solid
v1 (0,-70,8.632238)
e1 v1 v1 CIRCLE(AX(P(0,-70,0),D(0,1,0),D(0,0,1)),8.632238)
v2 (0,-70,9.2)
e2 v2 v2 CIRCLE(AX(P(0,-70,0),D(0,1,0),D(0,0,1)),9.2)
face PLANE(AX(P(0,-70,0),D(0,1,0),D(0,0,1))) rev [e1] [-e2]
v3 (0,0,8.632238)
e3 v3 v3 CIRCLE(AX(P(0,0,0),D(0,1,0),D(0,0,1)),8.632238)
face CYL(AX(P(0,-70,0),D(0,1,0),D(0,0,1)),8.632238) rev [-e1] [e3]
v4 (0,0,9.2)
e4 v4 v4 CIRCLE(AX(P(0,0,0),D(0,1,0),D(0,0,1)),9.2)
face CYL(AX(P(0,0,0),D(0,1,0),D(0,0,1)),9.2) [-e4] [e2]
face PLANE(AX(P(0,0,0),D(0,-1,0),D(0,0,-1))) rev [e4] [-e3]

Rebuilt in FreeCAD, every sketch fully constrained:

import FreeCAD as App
import Part
import Sketcher


def add_polygon(sketch, points):
    """Adds a closed chain of lines whose ends are joined by coincident constraints."""
    first, n = sketch.GeometryCount, len(points)
    for a, b in zip(points, points[1:] + points[:1]):
        sketch.addGeometry(Part.LineSegment(App.Vector(*a, 0), App.Vector(*b, 0)), False)
    for i in range(n):
        sketch.addConstraint(Sketcher.Constraint("Coincident", first + i, 2, first + (i + 1) % n, 1))

doc = App.newDocument("Part")
body = doc.addObject("PartDesign::Body", "Body")

# Sketch on YZ plane
sketch1 = doc.addObject("Sketcher::SketchObject", "Sketch")
body.addObject(sketch1)
sketch1.AttachmentSupport = (doc.YZ_Plane, [""])
sketch1.MapMode = "FlatFace"
add_polygon(sketch1, [(0, 0), (-70, 0), (-70, -9), (0, -9)])  # lines 0-3
sketch1.addConstraint(Sketcher.Constraint("Horizontal", 0))
sketch1.addConstraint(Sketcher.Constraint("Vertical", 1))
sketch1.addConstraint(Sketcher.Constraint("Horizontal", 2))
sketch1.addConstraint(Sketcher.Constraint("Vertical", 3))
sketch1.addConstraint(Sketcher.Constraint("Coincident", 3, 2, -1, 1))
sketch1.addConstraint(Sketcher.Constraint("DistanceX", 0, 2, 0, 1, 70.0))
sketch1.addConstraint(Sketcher.Constraint("DistanceY", 1, 2, 1, 1, 9.2))
revolution = doc.addObject("PartDesign::Revolution", "Revolution")
body.addObject(revolution)
revolution.Profile = sketch1
revolution.ReferenceAxis = (sketch1, ["H_Axis"])
revolution.Angle = 360

# Sketch on XZ plane
sketch2 = doc.addObject("Sketcher::SketchObject", "Sketch001")
body.addObject(sketch2)
sketch2.AttachmentSupport = (doc.XZ_Plane, [""])
sketch2.MapMode = "FlatFace"
sketch2.addGeometry(Part.Circle(App.Vector(0, 0, 0), App.Vector(0, 0, 1), 9), False)
sketch2.addConstraint(Sketcher.Constraint("Coincident", 0, 3, -1, 1))
sketch2.addConstraint(Sketcher.Constraint("Diameter", 0, 17.264476))
pocket1 = doc.addObject("PartDesign::Pocket", "Pocket")
body.addObject(pocket1)
pocket1.Profile = sketch2
pocket1.Type = "ThroughAll"
pocket1.Reversed = True

doc.recompute()
